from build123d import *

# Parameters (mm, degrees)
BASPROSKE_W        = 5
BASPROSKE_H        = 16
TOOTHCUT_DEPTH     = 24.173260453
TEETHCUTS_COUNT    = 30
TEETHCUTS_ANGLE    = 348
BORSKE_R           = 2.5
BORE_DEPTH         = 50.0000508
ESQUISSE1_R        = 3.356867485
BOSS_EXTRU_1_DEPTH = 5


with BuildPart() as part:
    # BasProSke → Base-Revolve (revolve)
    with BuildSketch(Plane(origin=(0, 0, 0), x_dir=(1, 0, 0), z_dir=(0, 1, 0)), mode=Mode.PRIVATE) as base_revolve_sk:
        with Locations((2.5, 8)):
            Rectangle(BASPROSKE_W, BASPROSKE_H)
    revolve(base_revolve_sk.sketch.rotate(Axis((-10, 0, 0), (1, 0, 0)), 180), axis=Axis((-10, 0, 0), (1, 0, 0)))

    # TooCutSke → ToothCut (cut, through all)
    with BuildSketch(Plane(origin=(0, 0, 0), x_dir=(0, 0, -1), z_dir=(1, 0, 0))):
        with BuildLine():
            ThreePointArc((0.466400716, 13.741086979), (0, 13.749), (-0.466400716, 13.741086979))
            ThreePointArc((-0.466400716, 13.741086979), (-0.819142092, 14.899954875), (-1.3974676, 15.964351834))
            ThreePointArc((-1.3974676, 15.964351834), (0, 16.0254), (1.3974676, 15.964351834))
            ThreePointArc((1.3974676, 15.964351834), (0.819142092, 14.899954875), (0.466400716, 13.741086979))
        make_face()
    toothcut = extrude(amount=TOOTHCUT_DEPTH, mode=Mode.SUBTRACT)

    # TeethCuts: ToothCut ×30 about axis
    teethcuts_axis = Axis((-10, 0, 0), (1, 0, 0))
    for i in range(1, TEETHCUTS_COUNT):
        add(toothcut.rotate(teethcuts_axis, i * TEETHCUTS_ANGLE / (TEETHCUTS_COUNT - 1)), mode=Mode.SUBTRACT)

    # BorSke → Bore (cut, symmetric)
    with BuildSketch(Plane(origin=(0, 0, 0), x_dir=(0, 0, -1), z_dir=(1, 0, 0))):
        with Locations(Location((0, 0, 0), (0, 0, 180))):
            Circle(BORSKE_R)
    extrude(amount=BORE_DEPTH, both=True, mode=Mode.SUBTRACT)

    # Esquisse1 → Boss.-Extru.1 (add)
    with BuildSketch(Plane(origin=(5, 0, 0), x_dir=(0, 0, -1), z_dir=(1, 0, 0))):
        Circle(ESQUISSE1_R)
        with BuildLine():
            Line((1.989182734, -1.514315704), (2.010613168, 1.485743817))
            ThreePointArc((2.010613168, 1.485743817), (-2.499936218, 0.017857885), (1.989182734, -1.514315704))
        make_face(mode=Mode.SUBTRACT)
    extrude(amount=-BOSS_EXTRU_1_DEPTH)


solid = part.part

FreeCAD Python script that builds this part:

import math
import FreeCAD as App
import Part
import Sketcher
from FreeCAD import Vector


def add_polygon(sketch, points):
    """Adds a closed chain of lines whose ends are joined by coincident constraints."""
    first, n = sketch.GeometryCount, len(points)
    for a, b in zip(points, points[1:] + points[:1]):
        sketch.addGeometry(Part.LineSegment(App.Vector(*a, 0), App.Vector(*b, 0)), False)
    for i in range(n):
        sketch.addConstraint(Sketcher.Constraint("Coincident", first + i, 2, first + (i + 1) % n, 1))

doc = App.newDocument("Part")
body = doc.addObject("PartDesign::Body", "Body")

# Sketch on XZ plane
sketch1 = doc.addObject("Sketcher::SketchObject", "Sketch")
body.addObject(sketch1)
sketch1.AttachmentSupport = (doc.XZ_Plane, [""])
sketch1.MapMode = "FlatFace"
add_polygon(sketch1, [(0, -16), (0, 0), (5, 0), (5, -16)])  # lines 0-3
sketch1.addConstraint([
    Sketcher.Constraint("Vertical", 0),
    Sketcher.Constraint("Horizontal", 1),
    Sketcher.Constraint("Vertical", 2),
    Sketcher.Constraint("Horizontal", 3),
    Sketcher.Constraint("Coincident", 0, 2, -1, 1),
    Sketcher.Constraint("DistanceX", 1, 1, 1, 2, 5.0),
    Sketcher.Constraint("DistanceY", 0, 1, 0, 2, 16.0),
])
revolution = doc.addObject("PartDesign::Revolution", "Revolution")
body.addObject(revolution)
revolution.Profile = sketch1
revolution.ReferenceAxis = (sketch1, ["H_Axis"])
revolution.Angle = 360

# Sketch on YZ plane
sketch2 = doc.addObject("Sketcher::SketchObject", "Sketch001")
body.addObject(sketch2)
sketch2.AttachmentSupport = (doc.YZ_Plane, [""])
sketch2.MapMode = "FlatFace"
sketch2.addGeometry([
    Part.ArcOfCircle(Part.Circle(Vector(0, 0, 0), Vector(0, 0, 1), 13.7), math.radians(-1.94), math.radians(1.94)),
    Part.ArcOfCircle(Part.Circle(Vector(12.6, -6.4, 0), Vector(0, 0, 1), 6), math.radians(56), math.radians(79)),
    Part.ArcOfCircle(Part.Circle(Vector(0, 0, 0), Vector(0, 0, 1), 16), math.radians(-5), math.radians(5)),
    Part.ArcOfCircle(Part.Circle(Vector(12.6, 6.4, 0), Vector(0, 0, 1), 6), math.radians(-79), math.radians(-56)),
], False)
sketch2.addConstraint([
    Sketcher.Constraint("Coincident", 0, 1, 1, 2),
    Sketcher.Constraint("Coincident", 1, 1, 2, 1),
    Sketcher.Constraint("Coincident", 2, 2, 3, 2),
    Sketcher.Constraint("Coincident", 3, 1, 0, 2),
    Sketcher.Constraint("Coincident", 0, 3, -1, 1),
    Sketcher.Constraint("Coincident", 2, 3, -1, 1),
    Sketcher.Constraint("Equal", 1, 3),
    Sketcher.Constraint("Symmetric", 1, 3, 3, 3, -1),
    Sketcher.Constraint("Radius", 1, 6.0),
    Sketcher.Constraint("Radius", 0, 13.749),
    Sketcher.Constraint("Radius", 2, 16.0254),
    Sketcher.Constraint("DistanceY", 0, 1, -1, 1, 0.466401),
    Sketcher.Constraint("DistanceX", -1, 1, 1, 1, 15.964352),
])
pocket1 = doc.addObject("PartDesign::Pocket", "Pocket")
body.addObject(pocket1)
pocket1.Profile = sketch2
pocket1.Type = "ThroughAll"
pocket1.Reversed = True
doc.recompute()

polarpattern = doc.addObject("PartDesign::PolarPattern", "PolarPattern")
body.addObject(polarpattern)
polarpattern.Originals = [pocket1]
polarpattern.Axis = (doc.X_Axis, [""])
polarpattern.Angle = 360
polarpattern.Occurrences = 30
body.Tip = polarpattern

# Sketch on YZ plane
sketch3 = doc.addObject("Sketcher::SketchObject", "Sketch002")
body.addObject(sketch3)
sketch3.AttachmentSupport = (doc.YZ_Plane, [""])
sketch3.MapMode = "FlatFace"
sketch3.addGeometry(Part.Circle(Vector(0, 0, 0), Vector(0, 0, 1), 2.5), False)
sketch3.addConstraint([
    Sketcher.Constraint("Coincident", 0, 3, -1, 1),
    Sketcher.Constraint("Diameter", 0, 5.0),
])
pocket2 = doc.addObject("PartDesign::Pocket", "Pocket001")
body.addObject(pocket2)
pocket2.Profile = sketch3
pocket2.Length = 100.000102
pocket2.Midplane = True

# Sketch on YZ plane
sketch4 = doc.addObject("Sketcher::SketchObject", "Sketch003")
body.addObject(sketch4)
sketch4.AttachmentSupport = (doc.YZ_Plane, [""])
sketch4.MapMode = "FlatFace"
sketch4.AttachmentOffset = App.Placement(Vector(0, 0, 5), App.Rotation())
sketch4.addGeometry([
    Part.Circle(Vector(0, 0, 0), Vector(0, 0, 1), 3.4),
    Part.LineSegment(Vector(1.5, -2, 0), Vector(-1.5, -2, 0)),
    Part.ArcOfCircle(Part.Circle(Vector(0, 0, 0), Vector(0, 0, 1), 2.5), math.radians(-54), math.radians(233)),
], False)
sketch4.addConstraint([
    Sketcher.Constraint("Coincident", 1, 1, 2, 1),
    Sketcher.Constraint("Coincident", 2, 2, 1, 2),
    Sketcher.Constraint("Coincident", 0, 3, -1, 1),
    Sketcher.Constraint("Coincident", 2, 3, -1, 1),
    Sketcher.Constraint("Radius", 2, 2.5),
    Sketcher.Constraint("Diameter", 0, 6.713735),
    Sketcher.Constraint("DistanceX", 2, 2, 1, 1, 3.00006),
    Sketcher.Constraint("DistanceY", 1, 1, 2, 2, 0.02143),
])
pad1 = doc.addObject("PartDesign::Pad", "Pad")
body.addObject(pad1)
pad1.Profile = sketch4
pad1.Length = 5
pad1.Reversed = True

doc.recompute()
